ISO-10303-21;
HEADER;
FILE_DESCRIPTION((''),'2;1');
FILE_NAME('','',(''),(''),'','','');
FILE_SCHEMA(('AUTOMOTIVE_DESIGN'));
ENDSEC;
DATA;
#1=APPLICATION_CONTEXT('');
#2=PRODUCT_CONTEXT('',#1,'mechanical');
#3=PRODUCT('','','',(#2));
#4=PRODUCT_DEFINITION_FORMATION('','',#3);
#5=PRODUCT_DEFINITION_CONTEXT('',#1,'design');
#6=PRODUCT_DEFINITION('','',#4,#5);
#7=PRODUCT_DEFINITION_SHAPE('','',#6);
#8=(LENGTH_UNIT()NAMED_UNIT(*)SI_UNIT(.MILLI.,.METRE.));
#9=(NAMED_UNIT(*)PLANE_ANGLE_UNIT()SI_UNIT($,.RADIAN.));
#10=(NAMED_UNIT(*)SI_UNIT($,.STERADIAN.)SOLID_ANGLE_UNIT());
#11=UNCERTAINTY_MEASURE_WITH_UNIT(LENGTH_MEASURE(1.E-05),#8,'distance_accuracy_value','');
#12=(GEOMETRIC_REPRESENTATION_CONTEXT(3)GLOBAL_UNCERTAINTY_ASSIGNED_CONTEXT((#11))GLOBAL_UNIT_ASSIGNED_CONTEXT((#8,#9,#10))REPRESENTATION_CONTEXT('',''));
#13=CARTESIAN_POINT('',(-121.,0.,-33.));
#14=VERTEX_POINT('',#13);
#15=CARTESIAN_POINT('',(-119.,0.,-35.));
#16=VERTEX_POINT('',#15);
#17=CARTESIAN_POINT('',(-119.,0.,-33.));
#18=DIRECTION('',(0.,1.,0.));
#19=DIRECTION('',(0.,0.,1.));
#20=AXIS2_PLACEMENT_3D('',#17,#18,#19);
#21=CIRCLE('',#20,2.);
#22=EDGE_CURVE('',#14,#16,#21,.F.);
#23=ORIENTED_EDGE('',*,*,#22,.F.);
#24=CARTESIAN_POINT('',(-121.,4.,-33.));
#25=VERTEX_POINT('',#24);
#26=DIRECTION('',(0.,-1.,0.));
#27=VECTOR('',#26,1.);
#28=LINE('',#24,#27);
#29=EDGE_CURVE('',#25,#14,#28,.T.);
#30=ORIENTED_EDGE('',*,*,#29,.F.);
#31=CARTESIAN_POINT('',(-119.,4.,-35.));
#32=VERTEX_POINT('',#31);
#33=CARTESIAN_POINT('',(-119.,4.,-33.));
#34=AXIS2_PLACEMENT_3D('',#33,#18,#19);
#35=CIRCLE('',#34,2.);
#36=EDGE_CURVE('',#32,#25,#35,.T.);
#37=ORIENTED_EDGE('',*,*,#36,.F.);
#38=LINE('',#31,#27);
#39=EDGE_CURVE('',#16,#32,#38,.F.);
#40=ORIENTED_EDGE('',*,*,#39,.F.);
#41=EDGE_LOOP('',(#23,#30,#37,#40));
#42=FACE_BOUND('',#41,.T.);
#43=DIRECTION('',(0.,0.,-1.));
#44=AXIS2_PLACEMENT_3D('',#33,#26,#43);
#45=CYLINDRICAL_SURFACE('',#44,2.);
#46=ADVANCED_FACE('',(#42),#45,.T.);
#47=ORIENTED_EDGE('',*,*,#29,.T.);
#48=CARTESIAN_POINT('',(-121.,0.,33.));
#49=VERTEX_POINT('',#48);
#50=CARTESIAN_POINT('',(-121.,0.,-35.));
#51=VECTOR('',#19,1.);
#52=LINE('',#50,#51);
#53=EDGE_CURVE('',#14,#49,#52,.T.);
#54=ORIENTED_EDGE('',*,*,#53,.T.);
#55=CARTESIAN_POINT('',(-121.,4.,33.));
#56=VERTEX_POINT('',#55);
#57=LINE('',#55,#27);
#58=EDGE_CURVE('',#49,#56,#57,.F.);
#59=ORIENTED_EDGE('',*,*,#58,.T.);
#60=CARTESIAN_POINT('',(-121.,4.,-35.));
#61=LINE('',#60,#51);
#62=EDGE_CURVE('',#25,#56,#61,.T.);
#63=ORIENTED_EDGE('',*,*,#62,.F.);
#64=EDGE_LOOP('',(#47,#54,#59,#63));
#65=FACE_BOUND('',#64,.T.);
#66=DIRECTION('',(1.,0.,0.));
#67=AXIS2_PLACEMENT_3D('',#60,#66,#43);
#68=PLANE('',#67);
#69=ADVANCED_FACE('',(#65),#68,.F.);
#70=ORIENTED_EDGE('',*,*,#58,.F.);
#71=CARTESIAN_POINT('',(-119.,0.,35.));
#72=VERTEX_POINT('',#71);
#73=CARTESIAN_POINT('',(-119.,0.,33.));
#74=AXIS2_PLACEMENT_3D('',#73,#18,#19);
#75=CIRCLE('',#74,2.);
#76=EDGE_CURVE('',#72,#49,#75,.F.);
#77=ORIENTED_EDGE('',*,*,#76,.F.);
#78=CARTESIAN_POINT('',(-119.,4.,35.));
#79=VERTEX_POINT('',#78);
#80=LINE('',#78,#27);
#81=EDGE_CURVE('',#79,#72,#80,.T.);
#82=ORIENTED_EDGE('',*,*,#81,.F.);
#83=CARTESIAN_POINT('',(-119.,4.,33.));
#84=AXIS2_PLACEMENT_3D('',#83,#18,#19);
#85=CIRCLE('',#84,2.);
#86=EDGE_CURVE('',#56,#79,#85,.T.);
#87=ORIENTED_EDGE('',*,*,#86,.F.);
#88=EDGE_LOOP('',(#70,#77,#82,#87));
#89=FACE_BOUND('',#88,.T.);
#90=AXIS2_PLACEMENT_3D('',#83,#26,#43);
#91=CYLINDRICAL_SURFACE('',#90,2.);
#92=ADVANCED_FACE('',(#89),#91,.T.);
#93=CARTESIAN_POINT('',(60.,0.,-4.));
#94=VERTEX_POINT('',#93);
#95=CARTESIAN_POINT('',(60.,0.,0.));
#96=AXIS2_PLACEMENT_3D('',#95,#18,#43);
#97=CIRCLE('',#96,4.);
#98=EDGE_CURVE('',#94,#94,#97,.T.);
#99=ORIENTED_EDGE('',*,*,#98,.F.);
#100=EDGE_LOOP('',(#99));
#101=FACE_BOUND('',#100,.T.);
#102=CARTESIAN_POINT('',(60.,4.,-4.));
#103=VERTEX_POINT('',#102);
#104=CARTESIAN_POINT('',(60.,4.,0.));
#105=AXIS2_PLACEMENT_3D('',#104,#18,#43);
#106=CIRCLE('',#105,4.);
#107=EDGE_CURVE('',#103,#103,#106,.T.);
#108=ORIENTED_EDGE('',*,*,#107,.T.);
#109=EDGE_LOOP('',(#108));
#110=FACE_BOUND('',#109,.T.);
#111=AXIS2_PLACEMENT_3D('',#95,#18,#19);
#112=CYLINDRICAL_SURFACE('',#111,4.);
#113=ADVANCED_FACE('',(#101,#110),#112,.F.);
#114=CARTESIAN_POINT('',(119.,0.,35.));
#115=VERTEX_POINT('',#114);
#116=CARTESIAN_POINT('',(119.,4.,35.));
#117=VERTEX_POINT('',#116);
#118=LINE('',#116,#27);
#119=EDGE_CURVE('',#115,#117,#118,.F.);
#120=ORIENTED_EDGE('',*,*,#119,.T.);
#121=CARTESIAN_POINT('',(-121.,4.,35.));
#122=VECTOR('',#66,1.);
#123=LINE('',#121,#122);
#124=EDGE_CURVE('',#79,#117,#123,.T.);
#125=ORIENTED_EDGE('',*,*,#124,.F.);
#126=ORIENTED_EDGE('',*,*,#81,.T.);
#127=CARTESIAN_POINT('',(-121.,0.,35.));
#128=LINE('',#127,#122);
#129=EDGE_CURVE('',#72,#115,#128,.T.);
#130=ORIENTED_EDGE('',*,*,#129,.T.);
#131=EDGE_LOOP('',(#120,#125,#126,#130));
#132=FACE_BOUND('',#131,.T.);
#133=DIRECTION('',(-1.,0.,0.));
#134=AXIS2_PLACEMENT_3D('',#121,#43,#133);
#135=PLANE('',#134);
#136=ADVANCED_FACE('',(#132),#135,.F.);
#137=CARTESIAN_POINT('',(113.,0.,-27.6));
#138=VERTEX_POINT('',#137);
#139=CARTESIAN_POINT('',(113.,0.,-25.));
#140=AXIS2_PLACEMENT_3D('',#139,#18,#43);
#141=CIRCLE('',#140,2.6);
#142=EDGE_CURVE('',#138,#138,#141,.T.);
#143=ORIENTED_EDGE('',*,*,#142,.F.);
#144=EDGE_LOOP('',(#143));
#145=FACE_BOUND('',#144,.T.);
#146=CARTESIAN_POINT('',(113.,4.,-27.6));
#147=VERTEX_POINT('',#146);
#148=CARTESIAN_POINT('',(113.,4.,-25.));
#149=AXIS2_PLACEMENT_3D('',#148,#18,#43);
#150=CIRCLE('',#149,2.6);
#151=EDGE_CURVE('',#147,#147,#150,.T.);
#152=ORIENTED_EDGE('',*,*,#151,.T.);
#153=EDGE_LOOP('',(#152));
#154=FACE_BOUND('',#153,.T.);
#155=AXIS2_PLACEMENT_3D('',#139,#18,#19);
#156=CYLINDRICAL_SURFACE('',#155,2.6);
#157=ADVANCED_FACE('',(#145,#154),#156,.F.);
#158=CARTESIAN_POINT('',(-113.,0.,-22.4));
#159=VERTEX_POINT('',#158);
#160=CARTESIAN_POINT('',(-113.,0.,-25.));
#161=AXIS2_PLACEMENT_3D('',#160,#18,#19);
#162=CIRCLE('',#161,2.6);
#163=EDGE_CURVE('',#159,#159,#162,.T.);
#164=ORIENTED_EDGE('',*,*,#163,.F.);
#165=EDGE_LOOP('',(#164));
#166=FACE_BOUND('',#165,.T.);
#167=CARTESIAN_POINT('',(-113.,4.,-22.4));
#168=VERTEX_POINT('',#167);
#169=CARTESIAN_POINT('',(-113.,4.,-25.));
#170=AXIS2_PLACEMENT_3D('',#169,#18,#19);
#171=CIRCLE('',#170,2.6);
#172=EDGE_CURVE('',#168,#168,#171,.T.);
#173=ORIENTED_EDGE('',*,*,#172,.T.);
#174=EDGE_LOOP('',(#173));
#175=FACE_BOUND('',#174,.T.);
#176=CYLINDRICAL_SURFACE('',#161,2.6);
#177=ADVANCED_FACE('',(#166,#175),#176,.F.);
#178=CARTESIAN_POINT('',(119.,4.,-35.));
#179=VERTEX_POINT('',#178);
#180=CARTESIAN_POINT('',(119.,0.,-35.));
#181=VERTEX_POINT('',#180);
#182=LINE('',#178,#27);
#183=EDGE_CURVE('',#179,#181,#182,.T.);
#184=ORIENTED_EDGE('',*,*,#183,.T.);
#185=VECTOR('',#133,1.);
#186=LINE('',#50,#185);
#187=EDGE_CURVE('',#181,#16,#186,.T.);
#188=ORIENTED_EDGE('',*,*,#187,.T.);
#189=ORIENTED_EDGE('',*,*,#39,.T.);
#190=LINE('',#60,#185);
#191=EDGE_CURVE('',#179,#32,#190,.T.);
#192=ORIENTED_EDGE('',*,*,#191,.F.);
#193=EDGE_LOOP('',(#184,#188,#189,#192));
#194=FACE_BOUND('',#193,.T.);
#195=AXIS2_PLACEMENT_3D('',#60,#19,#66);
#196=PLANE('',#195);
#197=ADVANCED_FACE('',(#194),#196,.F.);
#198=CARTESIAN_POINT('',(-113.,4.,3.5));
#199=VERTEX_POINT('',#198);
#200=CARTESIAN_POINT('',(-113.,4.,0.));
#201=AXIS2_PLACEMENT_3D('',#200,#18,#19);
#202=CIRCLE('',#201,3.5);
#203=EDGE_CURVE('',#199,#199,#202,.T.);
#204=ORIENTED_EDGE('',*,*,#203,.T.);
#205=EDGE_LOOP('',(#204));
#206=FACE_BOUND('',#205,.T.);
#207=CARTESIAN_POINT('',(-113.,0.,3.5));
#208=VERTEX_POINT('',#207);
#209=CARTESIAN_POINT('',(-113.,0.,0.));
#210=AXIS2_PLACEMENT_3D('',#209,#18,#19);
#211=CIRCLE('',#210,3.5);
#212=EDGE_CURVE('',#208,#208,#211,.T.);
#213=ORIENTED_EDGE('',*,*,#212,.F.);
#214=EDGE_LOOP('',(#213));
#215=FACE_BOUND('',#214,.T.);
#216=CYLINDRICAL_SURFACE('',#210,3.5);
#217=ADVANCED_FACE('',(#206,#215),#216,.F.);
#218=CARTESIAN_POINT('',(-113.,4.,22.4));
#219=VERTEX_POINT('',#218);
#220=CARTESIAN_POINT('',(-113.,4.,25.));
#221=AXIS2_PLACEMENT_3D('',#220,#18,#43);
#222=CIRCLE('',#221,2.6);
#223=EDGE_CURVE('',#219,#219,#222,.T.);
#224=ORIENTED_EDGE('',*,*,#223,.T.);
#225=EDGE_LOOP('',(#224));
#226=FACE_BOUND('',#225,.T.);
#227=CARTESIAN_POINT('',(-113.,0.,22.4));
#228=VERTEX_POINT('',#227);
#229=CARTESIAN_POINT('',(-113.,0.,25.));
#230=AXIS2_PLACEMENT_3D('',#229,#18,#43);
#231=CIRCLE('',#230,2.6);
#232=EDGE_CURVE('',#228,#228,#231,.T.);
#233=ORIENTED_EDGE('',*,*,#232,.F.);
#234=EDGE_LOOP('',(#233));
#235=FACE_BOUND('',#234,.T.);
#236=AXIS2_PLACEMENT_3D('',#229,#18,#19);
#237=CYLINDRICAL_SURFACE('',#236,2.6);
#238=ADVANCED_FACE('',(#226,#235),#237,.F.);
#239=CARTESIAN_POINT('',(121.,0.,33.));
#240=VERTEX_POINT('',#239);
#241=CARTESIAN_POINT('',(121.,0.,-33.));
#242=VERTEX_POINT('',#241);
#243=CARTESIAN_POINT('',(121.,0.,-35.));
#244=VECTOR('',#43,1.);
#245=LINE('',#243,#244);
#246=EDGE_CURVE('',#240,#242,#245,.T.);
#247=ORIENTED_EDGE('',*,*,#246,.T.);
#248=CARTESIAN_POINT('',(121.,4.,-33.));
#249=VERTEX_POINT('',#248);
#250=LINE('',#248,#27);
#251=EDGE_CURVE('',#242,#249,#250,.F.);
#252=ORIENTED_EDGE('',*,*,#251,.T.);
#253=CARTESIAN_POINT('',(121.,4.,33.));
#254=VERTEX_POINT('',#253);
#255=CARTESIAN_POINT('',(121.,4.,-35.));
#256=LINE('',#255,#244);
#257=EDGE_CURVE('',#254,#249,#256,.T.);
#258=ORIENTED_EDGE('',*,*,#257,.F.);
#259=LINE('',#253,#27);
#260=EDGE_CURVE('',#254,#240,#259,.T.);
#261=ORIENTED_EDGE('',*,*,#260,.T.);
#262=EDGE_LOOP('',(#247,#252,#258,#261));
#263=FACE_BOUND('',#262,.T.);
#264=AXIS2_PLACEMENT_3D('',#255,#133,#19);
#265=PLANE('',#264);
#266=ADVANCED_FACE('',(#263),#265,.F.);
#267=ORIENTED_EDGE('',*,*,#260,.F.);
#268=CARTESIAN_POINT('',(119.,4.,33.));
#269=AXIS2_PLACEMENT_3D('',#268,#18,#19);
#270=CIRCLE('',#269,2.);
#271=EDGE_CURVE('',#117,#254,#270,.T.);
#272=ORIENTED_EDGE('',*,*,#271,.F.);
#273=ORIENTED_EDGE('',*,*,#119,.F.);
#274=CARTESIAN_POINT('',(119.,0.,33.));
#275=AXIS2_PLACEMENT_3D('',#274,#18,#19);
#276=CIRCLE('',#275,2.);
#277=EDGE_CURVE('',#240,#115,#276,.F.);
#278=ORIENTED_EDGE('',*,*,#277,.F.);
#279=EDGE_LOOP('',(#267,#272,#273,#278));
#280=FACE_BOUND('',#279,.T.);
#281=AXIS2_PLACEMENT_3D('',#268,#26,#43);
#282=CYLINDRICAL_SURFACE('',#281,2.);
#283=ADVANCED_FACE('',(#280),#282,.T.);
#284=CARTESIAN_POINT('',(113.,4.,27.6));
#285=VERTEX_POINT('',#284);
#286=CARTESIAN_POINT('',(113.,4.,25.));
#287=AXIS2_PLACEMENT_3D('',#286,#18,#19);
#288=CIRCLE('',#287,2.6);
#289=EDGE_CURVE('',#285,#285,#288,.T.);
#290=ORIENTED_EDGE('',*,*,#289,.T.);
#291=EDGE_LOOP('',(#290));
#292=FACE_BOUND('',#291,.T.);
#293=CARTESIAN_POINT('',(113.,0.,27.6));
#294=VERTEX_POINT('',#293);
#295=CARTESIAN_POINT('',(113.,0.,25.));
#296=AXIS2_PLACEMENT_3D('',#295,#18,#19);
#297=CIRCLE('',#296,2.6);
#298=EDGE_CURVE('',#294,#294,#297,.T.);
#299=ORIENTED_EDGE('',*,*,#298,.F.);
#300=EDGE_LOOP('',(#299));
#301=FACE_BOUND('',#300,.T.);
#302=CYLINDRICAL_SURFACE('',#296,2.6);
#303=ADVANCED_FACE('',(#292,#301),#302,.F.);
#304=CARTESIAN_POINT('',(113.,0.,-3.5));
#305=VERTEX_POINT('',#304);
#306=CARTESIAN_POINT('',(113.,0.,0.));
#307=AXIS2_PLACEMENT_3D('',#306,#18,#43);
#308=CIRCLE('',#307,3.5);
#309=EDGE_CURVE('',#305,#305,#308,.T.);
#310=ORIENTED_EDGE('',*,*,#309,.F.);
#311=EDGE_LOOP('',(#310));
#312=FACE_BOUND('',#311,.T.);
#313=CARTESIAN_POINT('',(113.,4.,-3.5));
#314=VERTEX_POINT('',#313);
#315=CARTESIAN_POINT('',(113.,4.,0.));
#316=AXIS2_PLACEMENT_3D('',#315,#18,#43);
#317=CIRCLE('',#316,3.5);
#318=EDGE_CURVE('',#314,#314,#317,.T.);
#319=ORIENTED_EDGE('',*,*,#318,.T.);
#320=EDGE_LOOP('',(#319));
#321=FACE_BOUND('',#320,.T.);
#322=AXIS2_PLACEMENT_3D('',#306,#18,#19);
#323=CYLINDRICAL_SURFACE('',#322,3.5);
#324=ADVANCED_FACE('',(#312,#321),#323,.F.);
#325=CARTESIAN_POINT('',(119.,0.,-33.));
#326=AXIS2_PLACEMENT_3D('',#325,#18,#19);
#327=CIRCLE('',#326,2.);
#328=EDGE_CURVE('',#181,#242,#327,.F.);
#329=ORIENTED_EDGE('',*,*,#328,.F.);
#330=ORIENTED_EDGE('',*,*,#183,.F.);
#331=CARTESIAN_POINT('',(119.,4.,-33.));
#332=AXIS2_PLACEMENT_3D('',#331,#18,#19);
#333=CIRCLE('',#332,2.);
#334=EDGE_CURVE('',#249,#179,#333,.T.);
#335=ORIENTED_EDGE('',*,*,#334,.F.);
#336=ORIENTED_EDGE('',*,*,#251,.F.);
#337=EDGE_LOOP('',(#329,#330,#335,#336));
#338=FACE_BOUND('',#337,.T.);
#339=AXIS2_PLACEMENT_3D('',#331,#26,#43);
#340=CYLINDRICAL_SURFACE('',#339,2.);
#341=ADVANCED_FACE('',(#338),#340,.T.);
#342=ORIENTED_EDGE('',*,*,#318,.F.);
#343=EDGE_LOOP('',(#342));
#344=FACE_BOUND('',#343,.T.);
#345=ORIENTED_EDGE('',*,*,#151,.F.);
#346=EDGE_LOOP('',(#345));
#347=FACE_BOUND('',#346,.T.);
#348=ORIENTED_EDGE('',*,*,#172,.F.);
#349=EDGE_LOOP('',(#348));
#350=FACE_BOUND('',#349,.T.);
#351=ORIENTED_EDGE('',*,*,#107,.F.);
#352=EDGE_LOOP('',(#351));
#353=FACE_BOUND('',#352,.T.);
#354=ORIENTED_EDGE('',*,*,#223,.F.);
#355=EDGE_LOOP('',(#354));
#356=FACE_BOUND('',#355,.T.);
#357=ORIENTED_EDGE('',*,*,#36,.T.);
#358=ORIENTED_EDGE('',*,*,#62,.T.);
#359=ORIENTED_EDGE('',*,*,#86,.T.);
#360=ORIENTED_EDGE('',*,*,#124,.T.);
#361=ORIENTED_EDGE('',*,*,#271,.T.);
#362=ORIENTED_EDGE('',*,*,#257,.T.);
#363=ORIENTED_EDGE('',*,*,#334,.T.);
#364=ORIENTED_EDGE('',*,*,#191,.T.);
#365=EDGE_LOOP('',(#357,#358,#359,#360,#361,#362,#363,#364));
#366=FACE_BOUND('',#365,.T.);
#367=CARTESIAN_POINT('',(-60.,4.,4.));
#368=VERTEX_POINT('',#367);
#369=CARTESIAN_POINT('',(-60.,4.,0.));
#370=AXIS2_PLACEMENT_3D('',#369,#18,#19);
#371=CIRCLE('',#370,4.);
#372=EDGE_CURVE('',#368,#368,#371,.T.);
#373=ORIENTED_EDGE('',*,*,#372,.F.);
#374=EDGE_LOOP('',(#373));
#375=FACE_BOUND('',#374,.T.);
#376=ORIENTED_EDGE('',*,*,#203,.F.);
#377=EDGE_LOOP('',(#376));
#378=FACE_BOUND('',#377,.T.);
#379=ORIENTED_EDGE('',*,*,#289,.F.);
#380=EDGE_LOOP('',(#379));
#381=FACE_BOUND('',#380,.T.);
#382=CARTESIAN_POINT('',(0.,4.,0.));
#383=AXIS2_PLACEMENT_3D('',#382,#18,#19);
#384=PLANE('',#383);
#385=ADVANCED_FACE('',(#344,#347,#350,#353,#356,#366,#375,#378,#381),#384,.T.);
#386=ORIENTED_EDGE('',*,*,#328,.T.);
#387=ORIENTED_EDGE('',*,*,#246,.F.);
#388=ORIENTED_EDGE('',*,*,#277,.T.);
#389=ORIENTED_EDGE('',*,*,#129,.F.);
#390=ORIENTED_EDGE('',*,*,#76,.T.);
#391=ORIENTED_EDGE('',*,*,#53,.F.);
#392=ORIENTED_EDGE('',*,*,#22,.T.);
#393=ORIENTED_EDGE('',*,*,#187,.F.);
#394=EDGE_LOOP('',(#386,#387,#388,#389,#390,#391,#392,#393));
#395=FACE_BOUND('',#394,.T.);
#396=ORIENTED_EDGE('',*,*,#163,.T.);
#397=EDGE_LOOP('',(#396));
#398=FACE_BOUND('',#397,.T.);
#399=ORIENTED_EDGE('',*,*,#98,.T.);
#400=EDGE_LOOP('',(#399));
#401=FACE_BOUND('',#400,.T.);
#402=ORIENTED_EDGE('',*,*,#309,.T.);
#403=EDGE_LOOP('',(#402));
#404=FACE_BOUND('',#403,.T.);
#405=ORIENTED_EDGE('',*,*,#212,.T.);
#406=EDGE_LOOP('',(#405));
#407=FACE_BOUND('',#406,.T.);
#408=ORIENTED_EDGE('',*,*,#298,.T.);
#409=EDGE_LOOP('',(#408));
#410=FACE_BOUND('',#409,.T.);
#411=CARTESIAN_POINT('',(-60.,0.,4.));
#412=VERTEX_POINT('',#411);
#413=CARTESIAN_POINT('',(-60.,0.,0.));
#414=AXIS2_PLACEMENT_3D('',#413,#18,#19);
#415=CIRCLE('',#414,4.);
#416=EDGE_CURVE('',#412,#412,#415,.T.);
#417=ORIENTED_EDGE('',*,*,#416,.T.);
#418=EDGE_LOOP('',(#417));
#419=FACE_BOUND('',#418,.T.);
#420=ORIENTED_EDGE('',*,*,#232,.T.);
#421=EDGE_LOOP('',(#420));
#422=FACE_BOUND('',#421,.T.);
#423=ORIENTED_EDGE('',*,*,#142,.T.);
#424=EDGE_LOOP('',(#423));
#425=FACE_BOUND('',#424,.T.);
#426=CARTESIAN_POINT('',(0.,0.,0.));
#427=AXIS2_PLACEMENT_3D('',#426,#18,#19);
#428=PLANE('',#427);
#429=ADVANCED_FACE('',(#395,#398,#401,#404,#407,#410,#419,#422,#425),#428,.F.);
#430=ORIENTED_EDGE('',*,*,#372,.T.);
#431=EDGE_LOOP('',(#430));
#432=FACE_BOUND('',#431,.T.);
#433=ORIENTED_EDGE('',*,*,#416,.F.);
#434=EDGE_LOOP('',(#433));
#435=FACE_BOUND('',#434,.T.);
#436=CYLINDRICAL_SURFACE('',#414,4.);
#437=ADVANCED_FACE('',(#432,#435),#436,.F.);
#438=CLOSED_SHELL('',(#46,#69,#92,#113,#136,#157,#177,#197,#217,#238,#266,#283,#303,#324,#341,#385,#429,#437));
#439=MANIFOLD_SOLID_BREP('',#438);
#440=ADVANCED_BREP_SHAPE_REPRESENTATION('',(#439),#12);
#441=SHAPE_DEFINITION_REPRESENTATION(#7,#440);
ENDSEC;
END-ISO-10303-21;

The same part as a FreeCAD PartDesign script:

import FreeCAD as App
import Part
import Sketcher
Q = App.Units.Quantity


def edges_at(feature, points):
    """Names of the edges that pass closest to the given points."""
    edges = feature.Shape.Edges
    near = lambda p: min(range(len(edges)), key=lambda i: edges[i].distToShape(Part.Vertex(*p))[0])
    return sorted({f"Edge{near(p) + 1}" for p in points})


def add_polygon(sketch, points):
    """Adds a closed chain of lines whose ends are joined by coincident constraints."""
    first, n = sketch.GeometryCount, len(points)
    for a, b in zip(points, points[1:] + points[:1]):
        sketch.addGeometry(Part.LineSegment(App.Vector(*a, 0), App.Vector(*b, 0)), False)
    for i in range(n):
        sketch.addConstraint(Sketcher.Constraint("Coincident", first + i, 2, first + (i + 1) % n, 1))

doc = App.newDocument("Part")
body = doc.addObject("PartDesign::Body", "Body")

# Sketch on XZ plane
sketch1 = body.newObject("Sketcher::SketchObject", "Sketch")
sketch1.AttachmentSupport = (doc.getObject("XZ_Plane"), [""])
sketch1.MapMode = "FlatFace"
add_polygon(sketch1, [(-121, -35), (-121, 35), (121, 35), (121, -35)])  # lines 0-3
sketch1.addConstraint([
    Sketcher.Constraint("Vertical", 0),
    Sketcher.Constraint("Horizontal", 1),
    Sketcher.Constraint("Vertical", 2),
    Sketcher.Constraint("Horizontal", 3),
    Sketcher.Constraint("Symmetric", 0, 2, 2, 2, -1, 1),
    Sketcher.Constraint("DistanceX", 1, 1, 1, 2, Q("242 mm")),
    Sketcher.Constraint("DistanceY", 0, 1, 0, 2, Q("70 mm")),
])
pad1 = body.newObject("PartDesign::Pad", "Pad")
pad1.Profile = sketch1
pad1.Length = 4
pad1.Reversed = True

# Sketch on XZ plane
sketch2 = body.newObject("Sketcher::SketchObject", "Sketch001")
sketch2.AttachmentSupport = (doc.getObject("XZ_Plane"), [""])
sketch2.MapMode = "FlatFace"
sketch2.AttachmentOffset = App.Placement(App.Vector(0, 0, -4), App.Rotation())
sketch2.addGeometry([
    Part.Circle(App.Vector(-113, -25, 0), App.Vector(0, 0, 1), 2.6),  # 0
    Part.Circle(App.Vector(-113, 25, 0), App.Vector(0, 0, 1), 2.6),  # 1
    Part.Circle(App.Vector(113, 25, 0), App.Vector(0, 0, 1), 2.6),  # 2
    Part.Circle(App.Vector(113, -25, 0), App.Vector(0, 0, 1), 2.6),  # 3
    Part.Circle(App.Vector(-60, 0, 0), App.Vector(0, 0, 1), 4),  # 4
    Part.Circle(App.Vector(60, 0, 0), App.Vector(0, 0, 1), 4),  # 5
    Part.Circle(App.Vector(-113, 0, 0), App.Vector(0, 0, 1), 3.5),  # 6
    Part.Circle(App.Vector(113, 0, 0), App.Vector(0, 0, 1), 3.5),  # 7
], False)
sketch2.addConstraint([
    Sketcher.Constraint("Equal", 0, 1),
    Sketcher.Constraint("Equal", 1, 2),
    Sketcher.Constraint("Equal", 2, 3),
    Sketcher.Constraint("Equal", 4, 5),
    Sketcher.Constraint("Equal", 6, 7),
    Sketcher.Constraint("Symmetric", 0, 3, 2, 3, -1, 1),
    Sketcher.Constraint("Symmetric", 1, 3, 3, 3, -1, 1),
    Sketcher.Constraint("Symmetric", 4, 3, 5, 3, -1, 1),
    Sketcher.Constraint("Symmetric", 6, 3, 7, 3, -1, 1),
    Sketcher.Constraint("Symmetric", 1, 3, 2, 3, -2),
    Sketcher.Constraint("PointOnObject", 4, 3, -1),
    Sketcher.Constraint("PointOnObject", 6, 3, -1),
    Sketcher.Constraint("Vertical", 1, 3, 6, 3),
    Sketcher.Constraint("Diameter", 4, Q("8 mm")),
    Sketcher.Constraint("Diameter", 6, Q("7 mm")),
    Sketcher.Constraint("Diameter", 0, Q("5.2 mm")),
    Sketcher.Constraint("DistanceX", 0, 3, -1, 1, Q("113 mm")),
    Sketcher.Constraint("DistanceY", 0, 3, -1, 1, Q("25 mm")),
    Sketcher.Constraint("DistanceX", 4, 3, -1, 1, Q("60 mm")),
])
pocket1 = body.newObject("PartDesign::Pocket", "Pocket")
pocket1.Profile = sketch2
pocket1.Length = 4
pocket1.Reversed = True
doc.recompute()

fillet = body.newObject("PartDesign::Fillet", "Fillet")
fillet.Base = (pocket1, edges_at(pocket1, [
    (121, 2, 35),
    (-121, 2, 35),
    (-121, 2, -35),
    (121, 2, -35),
]))
fillet.Radius = 2

doc.recompute()
